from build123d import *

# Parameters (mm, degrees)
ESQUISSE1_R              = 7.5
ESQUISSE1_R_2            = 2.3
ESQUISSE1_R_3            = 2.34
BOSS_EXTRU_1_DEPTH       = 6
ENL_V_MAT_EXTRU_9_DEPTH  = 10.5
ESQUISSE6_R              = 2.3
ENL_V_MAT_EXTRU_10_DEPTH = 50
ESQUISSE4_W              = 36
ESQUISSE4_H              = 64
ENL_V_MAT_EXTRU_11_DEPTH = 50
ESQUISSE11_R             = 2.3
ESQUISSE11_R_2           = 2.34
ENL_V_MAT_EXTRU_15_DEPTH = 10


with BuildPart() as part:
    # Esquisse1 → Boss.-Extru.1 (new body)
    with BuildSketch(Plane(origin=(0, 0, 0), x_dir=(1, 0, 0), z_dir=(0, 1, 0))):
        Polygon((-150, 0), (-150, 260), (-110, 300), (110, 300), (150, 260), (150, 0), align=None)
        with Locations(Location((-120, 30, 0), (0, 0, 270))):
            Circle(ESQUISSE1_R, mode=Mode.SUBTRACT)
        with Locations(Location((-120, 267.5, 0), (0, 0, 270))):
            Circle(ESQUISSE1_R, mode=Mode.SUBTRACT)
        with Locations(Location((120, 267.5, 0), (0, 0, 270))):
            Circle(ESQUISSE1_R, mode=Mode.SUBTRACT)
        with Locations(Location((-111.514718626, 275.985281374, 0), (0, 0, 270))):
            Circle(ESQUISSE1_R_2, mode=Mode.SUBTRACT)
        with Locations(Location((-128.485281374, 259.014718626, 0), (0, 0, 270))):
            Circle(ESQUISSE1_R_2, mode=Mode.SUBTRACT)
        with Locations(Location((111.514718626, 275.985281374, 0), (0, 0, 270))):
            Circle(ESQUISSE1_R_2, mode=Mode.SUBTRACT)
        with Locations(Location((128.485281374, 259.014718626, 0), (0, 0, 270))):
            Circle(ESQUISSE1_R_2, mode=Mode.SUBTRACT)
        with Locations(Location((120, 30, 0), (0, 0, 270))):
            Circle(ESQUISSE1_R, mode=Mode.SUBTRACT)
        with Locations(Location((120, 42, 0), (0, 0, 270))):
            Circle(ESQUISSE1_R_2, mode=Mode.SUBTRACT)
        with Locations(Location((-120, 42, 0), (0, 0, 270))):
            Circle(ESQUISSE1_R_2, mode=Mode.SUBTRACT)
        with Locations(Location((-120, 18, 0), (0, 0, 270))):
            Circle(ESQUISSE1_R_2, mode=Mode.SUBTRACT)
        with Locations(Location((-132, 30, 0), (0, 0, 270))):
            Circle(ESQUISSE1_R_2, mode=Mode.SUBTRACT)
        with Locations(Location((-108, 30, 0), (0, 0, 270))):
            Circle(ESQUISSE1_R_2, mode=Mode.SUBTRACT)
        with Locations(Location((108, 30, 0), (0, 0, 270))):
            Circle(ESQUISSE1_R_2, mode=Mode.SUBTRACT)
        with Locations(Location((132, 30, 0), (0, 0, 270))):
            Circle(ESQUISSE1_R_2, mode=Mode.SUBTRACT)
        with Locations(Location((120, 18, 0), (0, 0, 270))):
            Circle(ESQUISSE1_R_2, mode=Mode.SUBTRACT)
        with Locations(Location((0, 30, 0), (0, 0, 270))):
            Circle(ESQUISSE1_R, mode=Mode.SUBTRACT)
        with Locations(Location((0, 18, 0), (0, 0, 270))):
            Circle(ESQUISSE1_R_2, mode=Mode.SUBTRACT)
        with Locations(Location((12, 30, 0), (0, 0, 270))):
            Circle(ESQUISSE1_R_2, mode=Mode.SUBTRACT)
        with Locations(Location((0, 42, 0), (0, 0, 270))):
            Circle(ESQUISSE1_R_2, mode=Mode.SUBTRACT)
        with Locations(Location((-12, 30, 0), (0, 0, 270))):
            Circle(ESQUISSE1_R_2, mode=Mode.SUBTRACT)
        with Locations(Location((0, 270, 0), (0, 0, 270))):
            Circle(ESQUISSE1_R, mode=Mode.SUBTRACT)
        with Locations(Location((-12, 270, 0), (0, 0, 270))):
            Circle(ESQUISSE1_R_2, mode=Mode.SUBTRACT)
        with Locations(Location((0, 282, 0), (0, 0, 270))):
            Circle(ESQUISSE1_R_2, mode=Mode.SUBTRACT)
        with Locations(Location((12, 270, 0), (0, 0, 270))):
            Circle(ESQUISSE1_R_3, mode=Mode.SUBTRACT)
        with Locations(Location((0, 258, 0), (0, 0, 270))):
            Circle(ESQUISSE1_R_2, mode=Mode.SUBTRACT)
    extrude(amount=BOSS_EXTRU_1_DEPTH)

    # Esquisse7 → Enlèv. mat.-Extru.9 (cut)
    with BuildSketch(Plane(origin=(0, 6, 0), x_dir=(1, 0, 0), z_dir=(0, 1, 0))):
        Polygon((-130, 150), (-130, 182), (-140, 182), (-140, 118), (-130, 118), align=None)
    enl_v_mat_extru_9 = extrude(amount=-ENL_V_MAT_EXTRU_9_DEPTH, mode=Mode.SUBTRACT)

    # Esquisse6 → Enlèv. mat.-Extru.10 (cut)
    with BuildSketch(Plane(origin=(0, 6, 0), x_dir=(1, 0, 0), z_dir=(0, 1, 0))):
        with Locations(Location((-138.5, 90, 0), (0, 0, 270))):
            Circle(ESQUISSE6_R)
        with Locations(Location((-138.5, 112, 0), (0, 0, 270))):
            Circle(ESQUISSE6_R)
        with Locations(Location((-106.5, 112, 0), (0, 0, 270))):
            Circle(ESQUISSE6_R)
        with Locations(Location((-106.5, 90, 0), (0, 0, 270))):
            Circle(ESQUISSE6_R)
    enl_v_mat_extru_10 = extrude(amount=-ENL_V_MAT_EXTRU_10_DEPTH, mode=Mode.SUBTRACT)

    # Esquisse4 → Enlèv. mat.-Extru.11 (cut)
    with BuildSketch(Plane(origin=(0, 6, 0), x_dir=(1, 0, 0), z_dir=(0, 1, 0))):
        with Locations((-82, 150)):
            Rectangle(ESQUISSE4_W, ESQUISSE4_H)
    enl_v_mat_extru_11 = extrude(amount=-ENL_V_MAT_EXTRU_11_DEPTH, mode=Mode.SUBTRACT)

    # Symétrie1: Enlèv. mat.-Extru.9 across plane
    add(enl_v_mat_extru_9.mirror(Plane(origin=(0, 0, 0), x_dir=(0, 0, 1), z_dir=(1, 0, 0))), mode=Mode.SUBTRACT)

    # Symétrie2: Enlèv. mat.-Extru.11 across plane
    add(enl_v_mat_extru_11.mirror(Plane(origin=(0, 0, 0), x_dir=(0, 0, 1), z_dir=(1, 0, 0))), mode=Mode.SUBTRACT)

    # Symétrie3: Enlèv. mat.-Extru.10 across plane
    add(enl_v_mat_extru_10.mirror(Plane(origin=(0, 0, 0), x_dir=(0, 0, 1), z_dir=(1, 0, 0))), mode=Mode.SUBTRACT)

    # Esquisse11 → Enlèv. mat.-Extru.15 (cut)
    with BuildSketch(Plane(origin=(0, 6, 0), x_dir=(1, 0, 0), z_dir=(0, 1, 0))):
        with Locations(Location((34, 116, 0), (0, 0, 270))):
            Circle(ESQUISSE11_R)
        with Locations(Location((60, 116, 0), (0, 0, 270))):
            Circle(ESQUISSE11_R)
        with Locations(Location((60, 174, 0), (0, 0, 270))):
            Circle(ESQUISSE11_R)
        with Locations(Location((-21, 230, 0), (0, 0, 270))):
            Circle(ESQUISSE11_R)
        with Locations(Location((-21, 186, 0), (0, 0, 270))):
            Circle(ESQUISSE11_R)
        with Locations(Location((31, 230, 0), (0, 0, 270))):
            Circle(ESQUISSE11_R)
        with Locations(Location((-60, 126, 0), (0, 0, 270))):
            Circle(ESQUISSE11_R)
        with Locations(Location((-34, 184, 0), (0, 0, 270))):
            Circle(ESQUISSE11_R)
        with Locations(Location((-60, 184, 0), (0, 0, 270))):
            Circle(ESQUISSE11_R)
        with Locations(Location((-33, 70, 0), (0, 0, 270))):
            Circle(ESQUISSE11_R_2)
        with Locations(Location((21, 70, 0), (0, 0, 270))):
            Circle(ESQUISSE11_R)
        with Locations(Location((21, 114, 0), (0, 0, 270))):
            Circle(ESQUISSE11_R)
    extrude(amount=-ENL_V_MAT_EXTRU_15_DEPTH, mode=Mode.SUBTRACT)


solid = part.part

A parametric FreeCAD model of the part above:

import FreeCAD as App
import Part
import Sketcher

V = App.Vector
Q = App.Units.Quantity

doc = App.newDocument("Part")
body = doc.addObject("PartDesign::Body", "Body")

# Sketch on XZ plane
sketch1 = doc.addObject("Sketcher::SketchObject", "Sketch")
body.addObject(sketch1)
sketch1.AttachmentSupport = (doc.XZ_Plane, [""])
sketch1.MapMode = "FlatFace"
sketch1.addGeometry([
    Part.LineSegment(V(-150, -260, 0), V(-150, 0, 0)),  # 0
    Part.LineSegment(V(-150, 0, 0), V(150, 0, 0)),  # 1
    Part.LineSegment(V(150, 0, 0), V(150, -260, 0)),  # 2
    Part.LineSegment(V(150, -260, 0), V(110, -300, 0)),  # 3
    Part.LineSegment(V(110, -300, 0), V(-110, -300, 0)),  # 4
    Part.LineSegment(V(-110, -300, 0), V(-150, -260, 0)),  # 5
    Part.Circle(V(120, -18, 0), V(0, 0, 1), 2.3),  # 6
    Part.Circle(V(132, -30, 0), V(0, 0, 1), 2.3),  # 7
    Part.Circle(V(120, -30, 0), V(0, 0, 1), 7.5),  # 8
    Part.Circle(V(108, -30, 0), V(0, 0, 1), 2.3),  # 9
    Part.Circle(V(120, -42, 0), V(0, 0, 1), 2.3),  # 10
    Part.Circle(V(12, -30, 0), V(0, 0, 1), 2.3),  # 11
    Part.Circle(V(0, -18, 0), V(0, 0, 1), 2.3),  # 12
    Part.Circle(V(0, -30, 0), V(0, 0, 1), 7.5),  # 13
    Part.Circle(V(-12, -30, 0), V(0, 0, 1), 2.3),  # 14
    Part.Circle(V(0, -42, 0), V(0, 0, 1), 2.3),  # 15
    Part.Circle(V(-108, -30, 0), V(0, 0, 1), 2.3),  # 16
    Part.Circle(V(-120, -18, 0), V(0, 0, 1), 2.3),  # 17
    Part.Circle(V(-120, -30, 0), V(0, 0, 1), 7.5),  # 18
    Part.Circle(V(-132, -30, 0), V(0, 0, 1), 2.3),  # 19
    Part.Circle(V(-120, -42, 0), V(0, 0, 1), 2.3),  # 20
    Part.Circle(V(128.5, -259, 0), V(0, 0, 1), 2.3),  # 21
    Part.Circle(V(120, -267.5, 0), V(0, 0, 1), 7.5),  # 22
    Part.Circle(V(111.5, -276, 0), V(0, 0, 1), 2.3),  # 23
    Part.Circle(V(12, -270, 0), V(0, 0, 1), 2.3),  # 24
    Part.Circle(V(0, -258, 0), V(0, 0, 1), 2.3),  # 25
    Part.Circle(V(0, -270, 0), V(0, 0, 1), 7.5),  # 26
    Part.Circle(V(-12, -270, 0), V(0, 0, 1), 2.3),  # 27
    Part.Circle(V(0, -282, 0), V(0, 0, 1), 2.3),  # 28
    Part.Circle(V(-128.5, -259, 0), V(0, 0, 1), 2.3),  # 29
    Part.Circle(V(-120, -267.5, 0), V(0, 0, 1), 7.5),  # 30
    Part.Circle(V(-111.5, -276, 0), V(0, 0, 1), 2.3),  # 31
], False)
sketch1.addConstraint([
    Sketcher.Constraint("Coincident", 0, 2, 1, 1),
    Sketcher.Constraint("Coincident", 1, 2, 2, 1),
    Sketcher.Constraint("Coincident", 2, 2, 3, 1),
    Sketcher.Constraint("Coincident", 3, 2, 4, 1),
    Sketcher.Constraint("Coincident", 4, 2, 5, 1),
    Sketcher.Constraint("Coincident", 5, 2, 0, 1),
    Sketcher.Constraint("Vertical", 0),
    Sketcher.Constraint("Horizontal", 1),
    Sketcher.Constraint("Vertical", 2),
    Sketcher.Constraint("Horizontal", 4),
    Sketcher.Constraint("Equal", 6, 7),
    Sketcher.Constraint("Equal", 7, 9),
    Sketcher.Constraint("Equal", 9, 10),
    Sketcher.Constraint("Equal", 10, 11),
    Sketcher.Constraint("Equal", 11, 12),
    Sketcher.Constraint("Equal", 8, 13),
    Sketcher.Constraint("Equal", 12, 14),
    Sketcher.Constraint("Equal", 14, 15),
    Sketcher.Constraint("Equal", 15, 16),
    Sketcher.Constraint("Equal", 16, 17),
    Sketcher.Constraint("Equal", 13, 18),
    Sketcher.Constraint("Equal", 17, 19),
    Sketcher.Constraint("Equal", 19, 20),
    Sketcher.Constraint("Equal", 20, 21),
    Sketcher.Constraint("Equal", 18, 22),
    Sketcher.Constraint("Equal", 21, 23),
    Sketcher.Constraint("Equal", 23, 25),
    Sketcher.Constraint("Equal", 22, 26),
    Sketcher.Constraint("Equal", 25, 27),
    Sketcher.Constraint("Equal", 27, 28),
    Sketcher.Constraint("Equal", 28, 29),
    Sketcher.Constraint("Equal", 26, 30),
    Sketcher.Constraint("Equal", 29, 31),
    Sketcher.Constraint("Symmetric", 0, 2, 1, 2, -1, 1),
    Sketcher.Constraint("Symmetric", 11, 3, 14, 3, -2),
    Sketcher.Constraint("Symmetric", 9, 3, 16, 3, -2),
    Sketcher.Constraint("Symmetric", 6, 3, 17, 3, -2),
    Sketcher.Constraint("Symmetric", 8, 3, 18, 3, -2),
    Sketcher.Constraint("Symmetric", 7, 3, 19, 3, -2),
    Sketcher.Constraint("Symmetric", 10, 3, 20, 3, -2),
    Sketcher.Constraint("Symmetric", 24, 3, 27, 3, -2),
    Sketcher.Constraint("Symmetric", 21, 3, 29, 3, -2),
    Sketcher.Constraint("Symmetric", 22, 3, 30, 3, -2),
    Sketcher.Constraint("Symmetric", 23, 3, 31, 3, -2),
    Sketcher.Constraint("PointOnObject", 12, 3, -2),
    Sketcher.Constraint("PointOnObject", 13, 3, -2),
    Sketcher.Constraint("PointOnObject", 15, 3, -2),
    Sketcher.Constraint("PointOnObject", 25, 3, -2),
    Sketcher.Constraint("PointOnObject", 26, 3, -2),
    Sketcher.Constraint("PointOnObject", 28, 3, -2),
    Sketcher.Constraint("Perpendicular", 3, 5),
    Sketcher.Constraint("Horizontal", 7, 3, 8, 3),
    Sketcher.Constraint("Horizontal", 8, 3, 9, 3),
    Sketcher.Constraint("Horizontal", 9, 3, 11, 3),
    Sketcher.Constraint("Horizontal", 6, 3, 12, 3),
    Sketcher.Constraint("Horizontal", 11, 3, 13, 3),
    Sketcher.Constraint("Horizontal", 10, 3, 15, 3),
    Sketcher.Constraint("Horizontal", 24, 3, 26, 3),
    Sketcher.Constraint("Horizontal", 2, 2, 5, 2),
    Sketcher.Constraint("Vertical", 6, 3, 8, 3),
    Sketcher.Constraint("Vertical", 8, 3, 10, 3),
    Sketcher.Constraint("Vertical", 10, 3, 22, 3),
    Sketcher.Constraint("Vertical", 11, 3, 24, 3),
    Sketcher.Constraint("Equal", 3, 5),
    Sketcher.Constraint("Diameter", 8, Q("15 mm")),
    Sketcher.Constraint("Diameter", 6, Q("4.6 mm")),
    Sketcher.Constraint("Diameter", 24, Q("4.68 mm")),
    Sketcher.Constraint("DistanceX", 1, 1, 1, 2, Q("300 mm")),
    Sketcher.Constraint("DistanceX", 4, 2, 4, 1, Q("220 mm")),
    Sketcher.Constraint("DistanceY", 0, 1, 0, 2, Q("260 mm")),
    Sketcher.Constraint("DistanceX", -1, 1, 6, 3, Q("120 mm")),
    Sketcher.Constraint("DistanceY", 6, 3, -1, 1, Q("18 mm")),
    Sketcher.Constraint("DistanceX", -1, 1, 7, 3, Q("132 mm")),
    Sketcher.Constraint("DistanceY", 7, 3, -1, 1, Q("30 mm")),
    Sketcher.Constraint("DistanceX", -1, 1, 9, 3, Q("108 mm")),
    Sketcher.Constraint("DistanceY", 10, 3, -1, 1, Q("42 mm")),
    Sketcher.Constraint("DistanceX", -1, 1, 11, 3, Q("12 mm")),
    Sketcher.Constraint("DistanceY", 24, 3, -1, 1, Q("270 mm")),
    Sketcher.Constraint("DistanceY", 25, 3, -1, 1, Q("258 mm")),
    Sketcher.Constraint("DistanceY", 28, 3, -1, 1, Q("282 mm")),
    Sketcher.Constraint("DistanceY", 22, 3, -1, 1, Q("267.5 mm")),
    Sketcher.Constraint("DistanceX", -1, 1, 21, 3, Q("128.485281 mm")),
    Sketcher.Constraint("DistanceY", 21, 3, -1, 1, Q("259.014719 mm")),
    Sketcher.Constraint("DistanceX", -1, 1, 23, 3, Q("111.514719 mm")),
    Sketcher.Constraint("DistanceY", 23, 3, -1, 1, Q("275.985281 mm")),
])
pad1 = doc.addObject("PartDesign::Pad", "Pad")
body.addObject(pad1)
pad1.Profile = sketch1
pad1.Length = 6
pad1.Reversed = True

# Sketch on XZ plane
sketch2 = doc.addObject("Sketcher::SketchObject", "Sketch001")
body.addObject(sketch2)
sketch2.AttachmentSupport = (doc.XZ_Plane, [""])
sketch2.MapMode = "FlatFace"
sketch2.AttachmentOffset = App.Placement(V(0, 0, -6), App.Rotation())
sketch2.addGeometry([
    Part.LineSegment(V(-130, -182, 0), V(-140, -182, 0)),
    Part.LineSegment(V(-140, -182, 0), V(-140, -118, 0)),
    Part.LineSegment(V(-140, -118, 0), V(-130, -118, 0)),
    Part.LineSegment(V(-130, -118, 0), V(-130, -182, 0)),
], False)
sketch2.addConstraint([
    Sketcher.Constraint("Coincident", 0, 2, 1, 1),
    Sketcher.Constraint("Coincident", 1, 2, 2, 1),
    Sketcher.Constraint("Coincident", 2, 2, 3, 1),
    Sketcher.Constraint("Coincident", 3, 2, 0, 1),
    Sketcher.Constraint("Horizontal", 0),
    Sketcher.Constraint("Vertical", 1),
    Sketcher.Constraint("Horizontal", 2),
    Sketcher.Constraint("Vertical", 3),
    Sketcher.Constraint("DistanceX", 0, 2, 0, 1, Q("10 mm")),
    Sketcher.Constraint("DistanceY", 1, 1, 1, 2, Q("64 mm")),
    Sketcher.Constraint("DistanceX", 0, 2, -1, 1, Q("140 mm")),
    Sketcher.Constraint("DistanceY", 0, 2, -1, 1, Q("182 mm")),
])
pocket1 = doc.addObject("PartDesign::Pocket", "Pocket")
body.addObject(pocket1)
pocket1.Profile = sketch2
pocket1.Length = 10.5
pocket1.Reversed = True

# Sketch on XZ plane
sketch3 = doc.addObject("Sketcher::SketchObject", "Sketch002")
body.addObject(sketch3)
sketch3.AttachmentSupport = (doc.XZ_Plane, [""])
sketch3.MapMode = "FlatFace"
sketch3.AttachmentOffset = App.Placement(V(0, 0, -6), App.Rotation())
sketch3.addGeometry([
    Part.Circle(V(-138.5, -90, 0), V(0, 0, 1), 2.3),
    Part.Circle(V(-138.5, -112, 0), V(0, 0, 1), 2.3),
    Part.Circle(V(-106.5, -112, 0), V(0, 0, 1), 2.3),
    Part.Circle(V(-106.5, -90, 0), V(0, 0, 1), 2.3),
], False)
sketch3.addConstraint([
    Sketcher.Constraint("Equal", 0, 1),
    Sketcher.Constraint("Equal", 1, 2),
    Sketcher.Constraint("Equal", 2, 3),
    Sketcher.Constraint("Horizontal", 1, 3, 2, 3),
    Sketcher.Constraint("Horizontal", 0, 3, 3, 3),
    Sketcher.Constraint("Vertical", 0, 3, 1, 3),
    Sketcher.Constraint("Vertical", 2, 3, 3, 3),
    Sketcher.Constraint("Diameter", 0, Q("4.6 mm")),
    Sketcher.Constraint("DistanceY", 0, 3, -1, 1, Q("90 mm")),
    Sketcher.Constraint("DistanceY", 1, 3, -1, 1, Q("112 mm")),
    Sketcher.Constraint("DistanceX", 1, 3, 2, 3, Q("32 mm")),
    Sketcher.Constraint("DistanceX", 0, 3, -1, 1, Q("138.5 mm")),
])
pocket2 = doc.addObject("PartDesign::Pocket", "Pocket001")
body.addObject(pocket2)
pocket2.Profile = sketch3
pocket2.Length = 50
pocket2.Reversed = True

# Sketch on XZ plane
sketch4 = doc.addObject("Sketcher::SketchObject", "Sketch003")
body.addObject(sketch4)
sketch4.AttachmentSupport = (doc.XZ_Plane, [""])
sketch4.MapMode = "FlatFace"
sketch4.AttachmentOffset = App.Placement(V(0, 0, -6), App.Rotation())
sketch4.addGeometry([
    Part.LineSegment(V(-100, -182, 0), V(-100, -118, 0)),
    Part.LineSegment(V(-100, -118, 0), V(-64, -118, 0)),
    Part.LineSegment(V(-64, -118, 0), V(-64, -182, 0)),
    Part.LineSegment(V(-64, -182, 0), V(-100, -182, 0)),
], False)
sketch4.addConstraint([
    Sketcher.Constraint("Coincident", 0, 2, 1, 1),
    Sketcher.Constraint("Coincident", 1, 2, 2, 1),
    Sketcher.Constraint("Coincident", 2, 2, 3, 1),
    Sketcher.Constraint("Coincident", 3, 2, 0, 1),
    Sketcher.Constraint("Vertical", 0),
    Sketcher.Constraint("Horizontal", 1),
    Sketcher.Constraint("Vertical", 2),
    Sketcher.Constraint("Horizontal", 3),
    Sketcher.Constraint("DistanceX", 1, 1, 1, 2, Q("36 mm")),
    Sketcher.Constraint("DistanceY", 0, 1, 0, 2, Q("64 mm")),
    Sketcher.Constraint("DistanceX", 0, 2, -1, 1, Q("100 mm")),
    Sketcher.Constraint("DistanceY", 0, 2, -1, 1, Q("118 mm")),
])
pocket3 = doc.addObject("PartDesign::Pocket", "Pocket002")
body.addObject(pocket3)
pocket3.Profile = sketch4
pocket3.Length = 50
pocket3.Reversed = True
doc.recompute()

mirrored = doc.addObject("PartDesign::Mirrored", "Mirrored")
body.addObject(mirrored)
mirrored.Originals = [pocket1]
mirrored.MirrorPlane = (doc.YZ_Plane, [""])
body.Tip = mirrored
doc.recompute()

mirrored2 = doc.addObject("PartDesign::Mirrored", "Mirrored001")
body.addObject(mirrored2)
mirrored2.Originals = [pocket3]
mirrored2.MirrorPlane = (doc.YZ_Plane, [""])
body.Tip = mirrored2
doc.recompute()

mirrored3 = doc.addObject("PartDesign::Mirrored", "Mirrored002")
body.addObject(mirrored3)
mirrored3.Originals = [pocket2]
mirrored3.MirrorPlane = (doc.YZ_Plane, [""])
body.Tip = mirrored3

# Sketch on XZ plane
sketch5 = doc.addObject("Sketcher::SketchObject", "Sketch004")
body.addObject(sketch5)
sketch5.AttachmentSupport = (doc.XZ_Plane, [""])
sketch5.MapMode = "FlatFace"
sketch5.AttachmentOffset = App.Placement(V(0, 0, -6), App.Rotation())
sketch5.addGeometry([
    Part.Circle(V(34, -116, 0), V(0, 0, 1), 2.3),  # 0
    Part.Circle(V(60, -116, 0), V(0, 0, 1), 2.3),  # 1
    Part.Circle(V(60, -174, 0), V(0, 0, 1), 2.3),  # 2
    Part.Circle(V(-21, -230, 0), V(0, 0, 1), 2.3),  # 3
    Part.Circle(V(-21, -186, 0), V(0, 0, 1), 2.3),  # 4
    Part.Circle(V(31, -230, 0), V(0, 0, 1), 2.3),  # 5
    Part.Circle(V(-60, -126, 0), V(0, 0, 1), 2.3),  # 6
    Part.Circle(V(-34, -184, 0), V(0, 0, 1), 2.3),  # 7
    Part.Circle(V(-60, -184, 0), V(0, 0, 1), 2.3),  # 8
    Part.Circle(V(-33, -70, 0), V(0, 0, 1), 2.3),  # 9
    Part.Circle(V(21, -70, 0), V(0, 0, 1), 2.3),  # 10
    Part.Circle(V(21, -114, 0), V(0, 0, 1), 2.3),  # 11
], False)
sketch5.addConstraint([
    Sketcher.Constraint("Equal", 0, 1),
    Sketcher.Constraint("Equal", 1, 2),
    Sketcher.Constraint("Equal", 2, 3),
    Sketcher.Constraint("Equal", 3, 4),
    Sketcher.Constraint("Equal", 4, 5),
    Sketcher.Constraint("Equal", 5, 6),
    Sketcher.Constraint("Equal", 6, 7),
    Sketcher.Constraint("Equal", 7, 8),
    Sketcher.Constraint("Equal", 8, 10),
    Sketcher.Constraint("Equal", 10, 11),
    Sketcher.Constraint("Horizontal", 0, 3, 1, 3),
    Sketcher.Constraint("Horizontal", 3, 3, 5, 3),
    Sketcher.Constraint("Horizontal", 7, 3, 8, 3),
    Sketcher.Constraint("Horizontal", 9, 3, 10, 3),
    Sketcher.Constraint("Vertical", 1, 3, 2, 3),
    Sketcher.Constraint("Vertical", 3, 3, 4, 3),
    Sketcher.Constraint("Vertical", 6, 3, 8, 3),
    Sketcher.Constraint("Vertical", 10, 3, 11, 3),
    Sketcher.Constraint("Diameter", 0, Q("4.6 mm")),
    Sketcher.Constraint("Diameter", 9, Q("4.68 mm")),
    Sketcher.Constraint("DistanceX", -1, 1, 0, 3, Q("34 mm")),
    Sketcher.Constraint("DistanceY", 0, 3, -1, 1, Q("116 mm")),
    Sketcher.Constraint("DistanceX", -1, 1, 1, 3, Q("60 mm")),
    Sketcher.Constraint("DistanceY", 2, 3, -1, 1, Q("174 mm")),
    Sketcher.Constraint("DistanceX", 3, 3, -1, 1, Q("21 mm")),
    Sketcher.Constraint("DistanceY", 3, 3, -1, 1, Q("230 mm")),
    Sketcher.Constraint("DistanceY", 4, 3, -1, 1, Q("186 mm")),
    Sketcher.Constraint("DistanceX", -1, 1, 5, 3, Q("31 mm")),
    Sketcher.Constraint("DistanceX", 6, 3, -1, 1, Q("60 mm")),
    Sketcher.Constraint("DistanceY", 6, 3, -1, 1, Q("126 mm")),
    Sketcher.Constraint("DistanceX", 7, 3, -1, 1, Q("34 mm")),
    Sketcher.Constraint("DistanceY", 7, 3, -1, 1, Q("184 mm")),
    Sketcher.Constraint("DistanceX", 9, 3, -1, 1, Q("33 mm")),
    Sketcher.Constraint("DistanceY", 9, 3, -1, 1, Q("70 mm")),
    Sketcher.Constraint("DistanceX", -1, 1, 10, 3, Q("21 mm")),
    Sketcher.Constraint("DistanceY", 11, 3, -1, 1, Q("114 mm")),
])
pocket4 = doc.addObject("PartDesign::Pocket", "Pocket003")
body.addObject(pocket4)
pocket4.Profile = sketch5
pocket4.Length = 10
pocket4.Reversed = True

doc.recompute()
